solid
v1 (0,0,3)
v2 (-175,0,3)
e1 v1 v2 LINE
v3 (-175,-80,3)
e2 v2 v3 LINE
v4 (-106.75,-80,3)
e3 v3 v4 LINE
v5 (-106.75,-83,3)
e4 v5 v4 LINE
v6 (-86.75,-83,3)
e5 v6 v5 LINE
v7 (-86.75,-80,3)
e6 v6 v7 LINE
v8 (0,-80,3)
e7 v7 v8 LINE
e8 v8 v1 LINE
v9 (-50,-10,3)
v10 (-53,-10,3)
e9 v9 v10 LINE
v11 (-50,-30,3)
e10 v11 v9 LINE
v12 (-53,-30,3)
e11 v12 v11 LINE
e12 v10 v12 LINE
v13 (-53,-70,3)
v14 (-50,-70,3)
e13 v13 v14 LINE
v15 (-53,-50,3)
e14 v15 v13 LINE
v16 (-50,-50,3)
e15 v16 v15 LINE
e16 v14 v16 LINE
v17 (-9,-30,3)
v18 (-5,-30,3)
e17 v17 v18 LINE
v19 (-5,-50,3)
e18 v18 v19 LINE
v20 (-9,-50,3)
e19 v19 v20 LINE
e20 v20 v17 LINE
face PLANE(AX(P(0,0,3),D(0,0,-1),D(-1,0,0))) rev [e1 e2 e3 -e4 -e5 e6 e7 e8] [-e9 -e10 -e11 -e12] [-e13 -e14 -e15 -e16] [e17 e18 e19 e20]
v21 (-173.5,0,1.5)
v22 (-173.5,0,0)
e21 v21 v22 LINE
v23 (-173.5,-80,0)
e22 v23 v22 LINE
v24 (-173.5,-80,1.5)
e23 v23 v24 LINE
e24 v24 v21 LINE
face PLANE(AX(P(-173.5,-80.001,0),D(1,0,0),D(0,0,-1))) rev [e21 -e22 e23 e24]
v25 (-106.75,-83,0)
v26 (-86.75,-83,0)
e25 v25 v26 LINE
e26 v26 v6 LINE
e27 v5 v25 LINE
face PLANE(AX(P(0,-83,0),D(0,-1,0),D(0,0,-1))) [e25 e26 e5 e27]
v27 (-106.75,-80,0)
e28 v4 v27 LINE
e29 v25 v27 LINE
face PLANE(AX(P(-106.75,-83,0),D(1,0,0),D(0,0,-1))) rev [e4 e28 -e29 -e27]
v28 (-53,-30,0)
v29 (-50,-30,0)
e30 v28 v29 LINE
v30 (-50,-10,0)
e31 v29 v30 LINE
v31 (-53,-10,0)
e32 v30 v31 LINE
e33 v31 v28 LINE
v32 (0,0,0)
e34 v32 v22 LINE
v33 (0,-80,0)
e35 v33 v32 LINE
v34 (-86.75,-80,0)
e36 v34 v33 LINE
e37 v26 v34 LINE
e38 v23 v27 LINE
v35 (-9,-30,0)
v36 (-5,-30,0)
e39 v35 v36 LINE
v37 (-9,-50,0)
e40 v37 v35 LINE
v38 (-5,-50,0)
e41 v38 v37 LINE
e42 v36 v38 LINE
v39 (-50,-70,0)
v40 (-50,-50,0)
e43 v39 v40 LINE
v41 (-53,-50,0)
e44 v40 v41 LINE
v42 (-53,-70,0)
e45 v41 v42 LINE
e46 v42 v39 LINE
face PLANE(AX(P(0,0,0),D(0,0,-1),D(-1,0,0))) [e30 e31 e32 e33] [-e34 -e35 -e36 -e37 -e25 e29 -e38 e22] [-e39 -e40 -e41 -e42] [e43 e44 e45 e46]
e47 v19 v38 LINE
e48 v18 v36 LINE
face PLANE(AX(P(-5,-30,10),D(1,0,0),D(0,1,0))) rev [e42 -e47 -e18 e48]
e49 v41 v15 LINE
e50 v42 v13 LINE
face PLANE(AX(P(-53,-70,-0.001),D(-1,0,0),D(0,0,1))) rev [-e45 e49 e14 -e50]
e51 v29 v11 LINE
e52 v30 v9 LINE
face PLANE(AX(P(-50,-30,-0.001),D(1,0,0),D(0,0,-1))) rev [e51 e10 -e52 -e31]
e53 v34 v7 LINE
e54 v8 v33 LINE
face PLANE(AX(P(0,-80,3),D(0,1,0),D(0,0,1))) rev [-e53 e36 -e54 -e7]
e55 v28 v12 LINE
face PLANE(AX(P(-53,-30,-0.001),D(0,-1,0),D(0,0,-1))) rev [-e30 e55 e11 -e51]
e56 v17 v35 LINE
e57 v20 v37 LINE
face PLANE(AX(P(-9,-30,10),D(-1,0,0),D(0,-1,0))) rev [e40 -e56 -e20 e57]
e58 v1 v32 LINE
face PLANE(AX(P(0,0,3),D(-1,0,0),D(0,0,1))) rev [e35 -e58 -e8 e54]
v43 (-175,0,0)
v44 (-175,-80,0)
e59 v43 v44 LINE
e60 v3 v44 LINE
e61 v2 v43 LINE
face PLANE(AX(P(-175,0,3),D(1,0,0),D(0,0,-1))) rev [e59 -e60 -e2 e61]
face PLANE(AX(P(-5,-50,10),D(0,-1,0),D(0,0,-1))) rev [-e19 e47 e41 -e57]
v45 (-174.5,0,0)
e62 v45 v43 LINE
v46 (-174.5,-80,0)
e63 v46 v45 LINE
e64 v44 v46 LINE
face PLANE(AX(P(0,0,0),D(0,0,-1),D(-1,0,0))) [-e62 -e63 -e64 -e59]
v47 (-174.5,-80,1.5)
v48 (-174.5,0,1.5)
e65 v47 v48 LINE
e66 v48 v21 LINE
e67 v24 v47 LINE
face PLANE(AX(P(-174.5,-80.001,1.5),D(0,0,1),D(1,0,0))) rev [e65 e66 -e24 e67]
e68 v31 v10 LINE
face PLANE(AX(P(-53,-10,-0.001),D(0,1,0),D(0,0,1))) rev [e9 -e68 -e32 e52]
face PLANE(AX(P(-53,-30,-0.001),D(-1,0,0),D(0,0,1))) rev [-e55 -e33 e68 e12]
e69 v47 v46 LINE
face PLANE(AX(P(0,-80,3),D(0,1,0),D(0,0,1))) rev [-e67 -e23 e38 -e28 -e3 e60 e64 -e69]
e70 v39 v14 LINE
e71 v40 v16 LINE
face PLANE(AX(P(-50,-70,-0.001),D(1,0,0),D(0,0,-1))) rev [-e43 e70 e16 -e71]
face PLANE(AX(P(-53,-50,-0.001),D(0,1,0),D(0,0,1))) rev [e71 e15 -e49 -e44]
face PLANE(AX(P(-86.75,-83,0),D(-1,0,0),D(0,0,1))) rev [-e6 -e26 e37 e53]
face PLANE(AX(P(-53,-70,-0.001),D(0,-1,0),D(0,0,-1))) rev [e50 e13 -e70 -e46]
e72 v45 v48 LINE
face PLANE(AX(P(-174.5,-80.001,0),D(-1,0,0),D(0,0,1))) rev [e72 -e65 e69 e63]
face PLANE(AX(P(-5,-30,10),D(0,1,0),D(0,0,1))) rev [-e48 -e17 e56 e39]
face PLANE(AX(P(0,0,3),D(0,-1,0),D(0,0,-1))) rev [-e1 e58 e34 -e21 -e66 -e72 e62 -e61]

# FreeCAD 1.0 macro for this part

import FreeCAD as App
import Part
import Sketcher
Q = App.Units.Quantity

doc = App.newDocument("Part")
body = doc.addObject("PartDesign::Body", "Body")

# Sketch on XY plane
sketch1 = body.newObject("Sketcher::SketchObject", "Sketch")
sketch1.AttachmentSupport = (doc.getObject("XY_Plane"), [""])
sketch1.MapMode = "FlatFace"
sketch1.addGeometry([
    Part.LineSegment(App.Vector(-175, 0, 0), App.Vector(-175, -80, 0)),
    Part.LineSegment(App.Vector(-175, -80, 0), App.Vector(0, -80, 0)),
    Part.LineSegment(App.Vector(0, -80, 0), App.Vector(0, 0, 0)),
    Part.LineSegment(App.Vector(0, 0, 0), App.Vector(-175, 0, 0)),
], False)
sketch1.addConstraint([
    Sketcher.Constraint("Coincident", 0, 2, 1, 1),
    Sketcher.Constraint("Coincident", 1, 2, 2, 1),
    Sketcher.Constraint("Coincident", 2, 2, 3, 1),
    Sketcher.Constraint("Coincident", 3, 2, 0, 1),
    Sketcher.Constraint("Vertical", 0),
    Sketcher.Constraint("Horizontal", 1),
    Sketcher.Constraint("Vertical", 2),
    Sketcher.Constraint("Horizontal", 3),
    Sketcher.Constraint("Coincident", 2, 2, -1, 1),
    Sketcher.Constraint("DistanceX", 1, 1, 1, 2, Q("175 mm")),
    Sketcher.Constraint("DistanceY", 0, 2, 0, 1, Q("80 mm")),
])
pad1 = body.newObject("PartDesign::Pad", "Pad")
pad1.Profile = sketch1
pad1.Length = 3

# Sketch on XY plane
sketch2 = body.newObject("Sketcher::SketchObject", "Sketch001")
sketch2.AttachmentSupport = (doc.getObject("XY_Plane"), [""])
sketch2.MapMode = "FlatFace"
sketch2.AttachmentOffset = App.Placement(App.Vector(0, 0, 3), App.Rotation())
sketch2.addGeometry([
    Part.LineSegment(App.Vector(-53, -50, 0), App.Vector(-53, -70, 0)),
    Part.LineSegment(App.Vector(-53, -70, 0), App.Vector(-50, -70, 0)),
    Part.LineSegment(App.Vector(-50, -70, 0), App.Vector(-50, -50, 0)),
    Part.LineSegment(App.Vector(-50, -50, 0), App.Vector(-53, -50, 0)),
], False)
sketch2.addConstraint([
    Sketcher.Constraint("Coincident", 0, 2, 1, 1),
    Sketcher.Constraint("Coincident", 1, 2, 2, 1),
    Sketcher.Constraint("Coincident", 2, 2, 3, 1),
    Sketcher.Constraint("Coincident", 3, 2, 0, 1),
    Sketcher.Constraint("Vertical", 0),
    Sketcher.Constraint("Horizontal", 1),
    Sketcher.Constraint("Vertical", 2),
    Sketcher.Constraint("Horizontal", 3),
    Sketcher.Constraint("DistanceX", 1, 1, 1, 2, Q("3 mm")),
    Sketcher.Constraint("DistanceY", 0, 2, 0, 1, Q("20 mm")),
    Sketcher.Constraint("DistanceX", 0, 2, -1, 1, Q("53 mm")),
    Sketcher.Constraint("DistanceY", 0, 2, -1, 1, Q("70 mm")),
])
pocket1 = body.newObject("PartDesign::Pocket", "Pocket")
pocket1.Profile = sketch2
pocket1.Type = "UpToFirst"

# Sketch on XY plane
sketch3 = body.newObject("Sketcher::SketchObject", "Sketch002")
sketch3.AttachmentSupport = (doc.getObject("XY_Plane"), [""])
sketch3.MapMode = "FlatFace"
sketch3.AttachmentOffset = App.Placement(App.Vector(0, 0, 3), App.Rotation())
sketch3.addGeometry([
    Part.LineSegment(App.Vector(-53, -10, 0), App.Vector(-53, -30, 0)),
    Part.LineSegment(App.Vector(-53, -30, 0), App.Vector(-50, -30, 0)),
    Part.LineSegment(App.Vector(-50, -30, 0), App.Vector(-50, -10, 0)),
    Part.LineSegment(App.Vector(-50, -10, 0), App.Vector(-53, -10, 0)),
], False)
sketch3.addConstraint([
    Sketcher.Constraint("Coincident", 0, 2, 1, 1),
    Sketcher.Constraint("Coincident", 1, 2, 2, 1),
    Sketcher.Constraint("Coincident", 2, 2, 3, 1),
    Sketcher.Constraint("Coincident", 3, 2, 0, 1),
    Sketcher.Constraint("Vertical", 0),
    Sketcher.Constraint("Horizontal", 1),
    Sketcher.Constraint("Vertical", 2),
    Sketcher.Constraint("Horizontal", 3),
    Sketcher.Constraint("DistanceX", 1, 1, 1, 2, Q("3 mm")),
    Sketcher.Constraint("DistanceY", 0, 2, 0, 1, Q("20 mm")),
    Sketcher.Constraint("DistanceX", 0, 2, -1, 1, Q("53 mm")),
    Sketcher.Constraint("DistanceY", 0, 2, -1, 1, Q("30 mm")),
])
pocket2 = body.newObject("PartDesign::Pocket", "Pocket001")
pocket2.Profile = sketch3
pocket2.Type = "UpToFirst"

# Sketch on XZ plane
sketch4 = body.newObject("Sketcher::SketchObject", "Sketch003")
sketch4.AttachmentSupport = (doc.getObject("XZ_Plane"), [""])
sketch4.MapMode = "FlatFace"
sketch4.addGeometry([
    Part.LineSegment(App.Vector(-174.5, 0, 0), App.Vector(-174.5, 1.5, 0)),
    Part.LineSegment(App.Vector(-174.5, 1.5, 0), App.Vector(-173.5, 1.5, 0)),
    Part.LineSegment(App.Vector(-173.5, 1.5, 0), App.Vector(-173.5, 0, 0)),
    Part.LineSegment(App.Vector(-173.5, 0, 0), App.Vector(-174.5, 0, 0)),
], False)
sketch4.addConstraint([
    Sketcher.Constraint("Coincident", 0, 2, 1, 1),
    Sketcher.Constraint("Coincident", 1, 2, 2, 1),
    Sketcher.Constraint("Coincident", 2, 2, 3, 1),
    Sketcher.Constraint("Coincident", 3, 2, 0, 1),
    Sketcher.Constraint("Vertical", 0),
    Sketcher.Constraint("Horizontal", 1),
    Sketcher.Constraint("Vertical", 2),
    Sketcher.Constraint("Horizontal", 3),
    Sketcher.Constraint("PointOnObject", 2, 2, -1),
    Sketcher.Constraint("DistanceX", 1, 1, 1, 2, Q("1 mm")),
    Sketcher.Constraint("DistanceY", 0, 1, 0, 2, Q("1.5 mm")),
    Sketcher.Constraint("DistanceX", 0, 2, -1, 1, Q("174.5 mm")),
])
pocket3 = body.newObject("PartDesign::Pocket", "Pocket002")
pocket3.Profile = sketch4
pocket3.Type = "UpToFirst"
pocket3.Reversed = True

# Sketch on XZ plane
sketch5 = body.newObject("Sketcher::SketchObject", "Sketch004")
sketch5.AttachmentSupport = (doc.getObject("XZ_Plane"), [""])
sketch5.MapMode = "FlatFace"
sketch5.AttachmentOffset = App.Placement(App.Vector(0, 0, 80), App.Rotation())
sketch5.addGeometry([
    Part.LineSegment(App.Vector(-86.75, 0, 0), App.Vector(-86.75, 3, 0)),
    Part.LineSegment(App.Vector(-86.75, 3, 0), App.Vector(-106.75, 3, 0)),
    Part.LineSegment(App.Vector(-106.75, 3, 0), App.Vector(-106.75, 0, 0)),
    Part.LineSegment(App.Vector(-106.75, 0, 0), App.Vector(-86.75, 0, 0)),
], False)
sketch5.addConstraint([
    Sketcher.Constraint("Coincident", 0, 2, 1, 1),
    Sketcher.Constraint("Coincident", 1, 2, 2, 1),
    Sketcher.Constraint("Coincident", 2, 2, 3, 1),
    Sketcher.Constraint("Coincident", 3, 2, 0, 1),
    Sketcher.Constraint("Vertical", 0),
    Sketcher.Constraint("Horizontal", 1),
    Sketcher.Constraint("Vertical", 2),
    Sketcher.Constraint("Horizontal", 3),
    Sketcher.Constraint("PointOnObject", 2, 2, -1),
    Sketcher.Constraint("DistanceX", 1, 2, 1, 1, Q("20 mm")),
    Sketcher.Constraint("DistanceY", 0, 1, 0, 2, Q("3 mm")),
    Sketcher.Constraint("DistanceX", 0, 2, -1, 1, Q("86.75 mm")),
])
pad2 = body.newObject("PartDesign::Pad", "Pad001")
pad2.Profile = sketch5
pad2.Length = 3

# Sketch on XY plane
sketch6 = body.newObject("Sketcher::SketchObject", "Sketch005")
sketch6.AttachmentSupport = (doc.getObject("XY_Plane"), [""])
sketch6.MapMode = "FlatFace"
sketch6.addGeometry([
    Part.LineSegment(App.Vector(-5, -30, 0), App.Vector(-5, -50, 0)),
    Part.LineSegment(App.Vector(-5, -50, 0), App.Vector(-9, -50, 0)),
    Part.LineSegment(App.Vector(-9, -50, 0), App.Vector(-9, -30, 0)),
    Part.LineSegment(App.Vector(-9, -30, 0), App.Vector(-5, -30, 0)),
], False)
sketch6.addConstraint([
    Sketcher.Constraint("Coincident", 0, 2, 1, 1),
    Sketcher.Constraint("Coincident", 1, 2, 2, 1),
    Sketcher.Constraint("Coincident", 2, 2, 3, 1),
    Sketcher.Constraint("Coincident", 3, 2, 0, 1),
    Sketcher.Constraint("Vertical", 0),
    Sketcher.Constraint("Horizontal", 1),
    Sketcher.Constraint("Vertical", 2),
    Sketcher.Constraint("Horizontal", 3),
    Sketcher.Constraint("DistanceX", 1, 2, 1, 1, Q("4 mm")),
    Sketcher.Constraint("DistanceY", 0, 2, 0, 1, Q("20 mm")),
    Sketcher.Constraint("DistanceX", 0, 2, -1, 1, Q("5 mm")),
    Sketcher.Constraint("DistanceY", 0, 2, -1, 1, Q("50 mm")),
])
pocket4 = body.newObject("PartDesign::Pocket", "Pocket003")
pocket4.Profile = sketch6
pocket4.Length = 10
pocket4.Reversed = True

doc.recompute()
